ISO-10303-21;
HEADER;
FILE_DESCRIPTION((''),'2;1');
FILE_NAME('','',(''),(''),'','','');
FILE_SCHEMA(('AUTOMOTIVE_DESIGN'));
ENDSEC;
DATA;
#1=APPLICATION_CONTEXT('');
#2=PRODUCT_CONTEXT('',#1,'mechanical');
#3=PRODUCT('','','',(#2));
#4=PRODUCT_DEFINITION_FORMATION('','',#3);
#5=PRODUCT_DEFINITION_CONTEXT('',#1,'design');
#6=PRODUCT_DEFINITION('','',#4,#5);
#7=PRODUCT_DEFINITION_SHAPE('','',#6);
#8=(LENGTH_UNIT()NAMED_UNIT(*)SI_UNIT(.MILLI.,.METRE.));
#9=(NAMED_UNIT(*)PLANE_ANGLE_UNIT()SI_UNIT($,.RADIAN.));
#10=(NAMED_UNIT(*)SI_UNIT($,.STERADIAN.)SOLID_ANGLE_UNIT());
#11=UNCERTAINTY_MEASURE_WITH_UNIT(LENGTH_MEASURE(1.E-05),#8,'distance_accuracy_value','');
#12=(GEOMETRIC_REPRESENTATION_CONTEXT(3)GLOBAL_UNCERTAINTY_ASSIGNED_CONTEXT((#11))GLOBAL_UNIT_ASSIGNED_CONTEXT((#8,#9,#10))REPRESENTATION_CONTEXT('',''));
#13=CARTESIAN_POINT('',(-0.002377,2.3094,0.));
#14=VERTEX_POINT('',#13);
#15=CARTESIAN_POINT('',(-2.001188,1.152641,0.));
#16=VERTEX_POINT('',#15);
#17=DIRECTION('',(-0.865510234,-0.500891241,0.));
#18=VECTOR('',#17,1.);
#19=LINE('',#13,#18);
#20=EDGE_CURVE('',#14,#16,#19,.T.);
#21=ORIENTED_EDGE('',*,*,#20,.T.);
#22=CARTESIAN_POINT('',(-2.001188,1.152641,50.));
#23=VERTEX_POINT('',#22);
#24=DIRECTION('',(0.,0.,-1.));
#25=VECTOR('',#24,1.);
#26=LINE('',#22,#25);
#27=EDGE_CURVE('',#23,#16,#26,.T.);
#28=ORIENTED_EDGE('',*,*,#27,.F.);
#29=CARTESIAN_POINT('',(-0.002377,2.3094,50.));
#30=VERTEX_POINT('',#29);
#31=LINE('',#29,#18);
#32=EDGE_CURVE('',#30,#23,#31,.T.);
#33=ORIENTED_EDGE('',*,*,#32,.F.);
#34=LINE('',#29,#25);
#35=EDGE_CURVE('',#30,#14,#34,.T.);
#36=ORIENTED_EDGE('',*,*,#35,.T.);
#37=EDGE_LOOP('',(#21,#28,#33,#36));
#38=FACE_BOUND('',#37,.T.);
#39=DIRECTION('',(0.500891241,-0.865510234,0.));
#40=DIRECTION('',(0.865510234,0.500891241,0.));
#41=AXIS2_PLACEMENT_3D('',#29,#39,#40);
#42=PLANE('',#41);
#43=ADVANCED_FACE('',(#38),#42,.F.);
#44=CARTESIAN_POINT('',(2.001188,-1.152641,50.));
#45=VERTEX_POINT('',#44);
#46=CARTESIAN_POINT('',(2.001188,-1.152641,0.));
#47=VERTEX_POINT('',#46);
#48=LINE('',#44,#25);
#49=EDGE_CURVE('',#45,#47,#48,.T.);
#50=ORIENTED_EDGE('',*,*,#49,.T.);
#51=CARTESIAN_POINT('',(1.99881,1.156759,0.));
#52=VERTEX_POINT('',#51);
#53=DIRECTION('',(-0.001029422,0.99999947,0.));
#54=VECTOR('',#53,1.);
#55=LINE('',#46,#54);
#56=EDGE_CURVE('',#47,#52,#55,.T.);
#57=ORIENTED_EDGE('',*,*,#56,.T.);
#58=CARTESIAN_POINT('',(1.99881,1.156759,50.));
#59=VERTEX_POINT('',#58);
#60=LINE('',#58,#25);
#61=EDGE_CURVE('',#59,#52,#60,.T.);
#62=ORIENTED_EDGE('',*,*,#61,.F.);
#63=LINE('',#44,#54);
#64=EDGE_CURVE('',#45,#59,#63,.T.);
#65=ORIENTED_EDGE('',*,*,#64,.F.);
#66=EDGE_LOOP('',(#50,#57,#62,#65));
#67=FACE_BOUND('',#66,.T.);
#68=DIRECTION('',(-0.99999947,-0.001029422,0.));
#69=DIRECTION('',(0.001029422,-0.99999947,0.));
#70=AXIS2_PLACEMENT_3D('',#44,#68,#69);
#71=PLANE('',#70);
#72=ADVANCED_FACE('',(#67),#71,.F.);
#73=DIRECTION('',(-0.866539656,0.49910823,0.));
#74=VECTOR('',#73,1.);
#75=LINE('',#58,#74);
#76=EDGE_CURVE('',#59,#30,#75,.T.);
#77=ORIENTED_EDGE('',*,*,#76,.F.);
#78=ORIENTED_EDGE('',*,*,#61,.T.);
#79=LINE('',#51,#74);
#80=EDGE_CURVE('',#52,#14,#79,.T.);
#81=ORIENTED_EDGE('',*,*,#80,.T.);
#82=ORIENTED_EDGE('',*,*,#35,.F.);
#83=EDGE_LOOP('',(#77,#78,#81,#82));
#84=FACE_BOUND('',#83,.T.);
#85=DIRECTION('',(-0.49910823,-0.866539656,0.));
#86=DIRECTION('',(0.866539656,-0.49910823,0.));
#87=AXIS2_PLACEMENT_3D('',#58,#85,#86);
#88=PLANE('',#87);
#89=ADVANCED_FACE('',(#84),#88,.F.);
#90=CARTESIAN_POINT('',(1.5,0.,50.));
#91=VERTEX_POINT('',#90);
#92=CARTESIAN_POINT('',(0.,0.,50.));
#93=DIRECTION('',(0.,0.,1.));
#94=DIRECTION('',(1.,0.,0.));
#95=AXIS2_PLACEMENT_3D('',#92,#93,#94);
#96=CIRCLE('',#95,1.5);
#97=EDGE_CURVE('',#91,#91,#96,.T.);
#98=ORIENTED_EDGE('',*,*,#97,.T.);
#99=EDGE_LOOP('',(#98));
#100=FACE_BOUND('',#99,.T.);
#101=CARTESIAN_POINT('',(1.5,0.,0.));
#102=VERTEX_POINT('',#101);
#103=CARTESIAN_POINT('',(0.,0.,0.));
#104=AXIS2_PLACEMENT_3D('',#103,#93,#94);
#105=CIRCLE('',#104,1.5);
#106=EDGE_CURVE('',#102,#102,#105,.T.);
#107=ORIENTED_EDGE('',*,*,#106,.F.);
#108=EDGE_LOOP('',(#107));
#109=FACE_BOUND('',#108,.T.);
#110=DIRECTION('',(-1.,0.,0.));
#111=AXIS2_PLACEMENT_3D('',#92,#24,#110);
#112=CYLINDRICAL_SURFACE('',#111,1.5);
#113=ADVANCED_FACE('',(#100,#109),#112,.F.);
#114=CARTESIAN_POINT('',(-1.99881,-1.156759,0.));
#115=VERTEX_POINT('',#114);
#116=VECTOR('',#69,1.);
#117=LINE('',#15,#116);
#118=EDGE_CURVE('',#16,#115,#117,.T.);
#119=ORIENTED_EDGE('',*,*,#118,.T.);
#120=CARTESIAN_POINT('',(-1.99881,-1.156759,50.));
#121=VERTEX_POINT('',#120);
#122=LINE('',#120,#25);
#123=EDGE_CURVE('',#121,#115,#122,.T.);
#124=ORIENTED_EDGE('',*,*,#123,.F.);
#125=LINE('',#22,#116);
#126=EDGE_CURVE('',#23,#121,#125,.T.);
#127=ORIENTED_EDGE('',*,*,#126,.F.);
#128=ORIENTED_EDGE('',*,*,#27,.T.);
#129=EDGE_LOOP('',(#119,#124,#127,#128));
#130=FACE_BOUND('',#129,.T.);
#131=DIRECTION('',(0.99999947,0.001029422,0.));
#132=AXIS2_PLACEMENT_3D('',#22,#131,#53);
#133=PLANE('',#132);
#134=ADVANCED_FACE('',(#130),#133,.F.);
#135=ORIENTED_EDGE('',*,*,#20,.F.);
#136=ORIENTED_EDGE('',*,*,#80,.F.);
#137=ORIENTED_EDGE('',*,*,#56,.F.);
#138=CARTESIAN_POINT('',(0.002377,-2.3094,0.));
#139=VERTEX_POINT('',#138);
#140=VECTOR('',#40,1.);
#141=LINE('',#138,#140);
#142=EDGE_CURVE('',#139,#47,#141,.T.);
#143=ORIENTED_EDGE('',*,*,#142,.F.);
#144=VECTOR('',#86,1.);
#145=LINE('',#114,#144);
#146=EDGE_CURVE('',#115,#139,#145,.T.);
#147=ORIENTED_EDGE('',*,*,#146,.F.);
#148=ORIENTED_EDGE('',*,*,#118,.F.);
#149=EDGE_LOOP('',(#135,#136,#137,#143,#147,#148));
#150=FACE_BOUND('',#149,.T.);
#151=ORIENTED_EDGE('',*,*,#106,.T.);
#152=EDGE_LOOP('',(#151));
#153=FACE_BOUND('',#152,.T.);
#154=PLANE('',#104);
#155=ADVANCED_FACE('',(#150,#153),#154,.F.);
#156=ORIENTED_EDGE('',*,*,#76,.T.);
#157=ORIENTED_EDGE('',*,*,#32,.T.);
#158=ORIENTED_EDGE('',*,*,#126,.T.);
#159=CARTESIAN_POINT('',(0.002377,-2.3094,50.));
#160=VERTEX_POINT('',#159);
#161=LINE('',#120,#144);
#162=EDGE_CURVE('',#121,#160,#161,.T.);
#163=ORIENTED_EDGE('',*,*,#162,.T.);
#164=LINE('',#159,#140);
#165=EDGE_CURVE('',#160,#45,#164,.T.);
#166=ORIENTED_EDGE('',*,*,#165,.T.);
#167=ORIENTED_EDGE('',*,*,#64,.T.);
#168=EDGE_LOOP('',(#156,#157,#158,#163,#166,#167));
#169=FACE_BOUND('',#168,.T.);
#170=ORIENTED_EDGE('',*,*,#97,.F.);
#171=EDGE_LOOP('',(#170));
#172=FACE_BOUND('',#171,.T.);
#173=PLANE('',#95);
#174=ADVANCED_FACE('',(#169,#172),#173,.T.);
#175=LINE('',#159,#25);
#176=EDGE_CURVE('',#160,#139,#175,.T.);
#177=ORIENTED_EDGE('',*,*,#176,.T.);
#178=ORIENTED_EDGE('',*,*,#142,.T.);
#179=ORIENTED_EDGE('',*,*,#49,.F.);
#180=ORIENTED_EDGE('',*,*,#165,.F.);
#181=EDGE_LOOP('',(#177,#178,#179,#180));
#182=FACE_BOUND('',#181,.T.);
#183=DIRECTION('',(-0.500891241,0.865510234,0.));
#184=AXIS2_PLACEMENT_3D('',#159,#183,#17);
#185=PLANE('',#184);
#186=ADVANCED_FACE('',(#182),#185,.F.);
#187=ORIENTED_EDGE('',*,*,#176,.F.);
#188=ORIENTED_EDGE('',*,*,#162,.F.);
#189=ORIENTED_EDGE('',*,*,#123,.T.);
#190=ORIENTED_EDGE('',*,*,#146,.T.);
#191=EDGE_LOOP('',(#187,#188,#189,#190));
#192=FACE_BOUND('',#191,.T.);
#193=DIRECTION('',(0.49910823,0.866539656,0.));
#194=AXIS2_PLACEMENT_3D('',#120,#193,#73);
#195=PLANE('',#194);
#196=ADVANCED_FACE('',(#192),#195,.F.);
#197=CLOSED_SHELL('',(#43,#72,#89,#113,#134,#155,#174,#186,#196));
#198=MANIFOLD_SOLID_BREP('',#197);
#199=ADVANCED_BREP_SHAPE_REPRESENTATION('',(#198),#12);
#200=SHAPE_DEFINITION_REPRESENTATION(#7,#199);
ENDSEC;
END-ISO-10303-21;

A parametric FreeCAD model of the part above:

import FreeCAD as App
import Part
import Sketcher

V = App.Vector


def add_polygon(sketch, points):
    """Adds a closed chain of lines whose ends are joined by coincident constraints."""
    first, n = sketch.GeometryCount, len(points)
    for a, b in zip(points, points[1:] + points[:1]):
        sketch.addGeometry(Part.LineSegment(App.Vector(*a, 0), App.Vector(*b, 0)), False)
    for i in range(n):
        sketch.addConstraint(Sketcher.Constraint("Coincident", first + i, 2, first + (i + 1) % n, 1))

doc = App.newDocument("Part")
body = doc.addObject("PartDesign::Body", "Body")

# Sketch on XY plane
sketch1 = body.newObject("Sketcher::SketchObject", "Sketch")
sketch1.AttachmentSupport = (doc.getObject("XY_Plane"), [""])
sketch1.MapMode = "FlatFace"
add_polygon(sketch1, [(2, -1.2), (2, 1.2), (0, 2.3), (-2, 1.2), (-2, -1.2), (0, -2.3)])  # lines 0-5
sketch1.addGeometry(Part.Circle(V(0, 0, 0), V(0, 0, 1), 1.5), False)  # 6
sketch1.addConstraint(Sketcher.Constraint("Coincident", 6, 3, -1, 1))
sketch1.addConstraint(Sketcher.Constraint("Symmetric", 0, 2, 3, 2, -1, 1))
sketch1.addConstraint(Sketcher.Constraint("Symmetric", 1, 2, 4, 2, -1, 1))
sketch1.addConstraint(Sketcher.Constraint("Symmetric", 2, 2, 5, 2, -1, 1))
sketch1.addConstraint(Sketcher.Constraint("Equal", 0, 1))
sketch1.addConstraint(Sketcher.Constraint("Equal", 1, 2))
sketch1.addConstraint(Sketcher.Constraint("Diameter", 6, 3.0))
sketch1.addConstraint(Sketcher.Constraint("Distance", 0, 2.309401))
sketch1.addConstraint(Sketcher.Constraint("DistanceY", -1, 1, 1, 2, 2.3094))
sketch1.addConstraint(Sketcher.Constraint("DistanceX", -1, 1, 0, 2, 1.99881))
sketch1.addConstraint(Sketcher.Constraint("DistanceY", -1, 1, 0, 2, 1.156759))
pad1 = body.newObject("PartDesign::Pad", "Pad")
pad1.Profile = sketch1
pad1.Length = 50

doc.recompute()
